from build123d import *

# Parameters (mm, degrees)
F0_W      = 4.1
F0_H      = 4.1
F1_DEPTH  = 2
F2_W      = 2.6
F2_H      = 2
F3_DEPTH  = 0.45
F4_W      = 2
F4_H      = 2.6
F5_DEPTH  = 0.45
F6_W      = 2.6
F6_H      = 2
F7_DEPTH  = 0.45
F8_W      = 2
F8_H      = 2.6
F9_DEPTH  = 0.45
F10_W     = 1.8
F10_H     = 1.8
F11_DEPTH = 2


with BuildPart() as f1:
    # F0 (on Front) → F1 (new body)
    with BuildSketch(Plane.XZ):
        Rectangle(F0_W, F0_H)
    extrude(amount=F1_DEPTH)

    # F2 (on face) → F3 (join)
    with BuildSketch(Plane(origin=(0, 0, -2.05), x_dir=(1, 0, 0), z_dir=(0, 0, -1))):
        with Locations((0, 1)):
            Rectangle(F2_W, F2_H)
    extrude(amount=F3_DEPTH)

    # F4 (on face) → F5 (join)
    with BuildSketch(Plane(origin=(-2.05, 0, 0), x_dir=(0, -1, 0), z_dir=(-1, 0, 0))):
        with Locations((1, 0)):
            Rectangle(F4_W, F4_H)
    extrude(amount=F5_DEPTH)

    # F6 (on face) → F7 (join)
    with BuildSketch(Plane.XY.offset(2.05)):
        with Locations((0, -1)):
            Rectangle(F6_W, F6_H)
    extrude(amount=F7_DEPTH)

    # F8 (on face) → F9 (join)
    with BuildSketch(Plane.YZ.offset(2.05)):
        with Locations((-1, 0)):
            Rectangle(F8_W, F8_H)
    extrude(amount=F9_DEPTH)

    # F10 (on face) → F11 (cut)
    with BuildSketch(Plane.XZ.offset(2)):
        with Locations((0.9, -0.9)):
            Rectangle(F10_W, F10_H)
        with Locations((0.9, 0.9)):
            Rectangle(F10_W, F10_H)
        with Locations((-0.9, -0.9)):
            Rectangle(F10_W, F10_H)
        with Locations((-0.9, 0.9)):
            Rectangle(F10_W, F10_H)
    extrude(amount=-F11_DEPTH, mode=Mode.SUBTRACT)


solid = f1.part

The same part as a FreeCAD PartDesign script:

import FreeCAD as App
import Part
import Sketcher
Q = App.Units.Quantity

doc = App.newDocument("Part")
body = doc.addObject("PartDesign::Body", "Body")

sketch1 = body.newObject("Sketcher::SketchObject", "Sketch")
sketch1.AttachmentSupport = (doc.getObject("XZ_Plane"), [""])
sketch1.MapMode = "FlatFace"
sketch1.addGeometry(Part.LineSegment(App.Vector(-2, 2, 0), App.Vector(-2, -2, 0)), False)
sketch1.addGeometry(Part.LineSegment(App.Vector(-2, -2, 0), App.Vector(2, -2, 0)), False)
sketch1.addGeometry(Part.LineSegment(App.Vector(2, -2, 0), App.Vector(2, 2, 0)), False)
sketch1.addGeometry(Part.LineSegment(App.Vector(2, 2, 0), App.Vector(-2, 2, 0)), False)
sketch1.addConstraint(Sketcher.Constraint("Coincident", 0, 2, 1, 1))
sketch1.addConstraint(Sketcher.Constraint("Coincident", 1, 2, 2, 1))
sketch1.addConstraint(Sketcher.Constraint("Coincident", 2, 2, 3, 1))
sketch1.addConstraint(Sketcher.Constraint("Coincident", 3, 2, 0, 1))
sketch1.addConstraint(Sketcher.Constraint("Vertical", 0))
sketch1.addConstraint(Sketcher.Constraint("Horizontal", 1))
sketch1.addConstraint(Sketcher.Constraint("Vertical", 2))
sketch1.addConstraint(Sketcher.Constraint("Horizontal", 3))
sketch1.addConstraint(Sketcher.Constraint("Symmetric", 0, 2, 2, 2, -1, 1))
sketch1.addConstraint(Sketcher.Constraint("Equal", 3, 0))
sketch1.addConstraint(Sketcher.Constraint("DistanceX", 1, 1, 1, 2, Q("4.1 mm")))
pad1 = body.newObject("PartDesign::Pad", "Pad")
pad1.Profile = sketch1
pad1.Length = 2

sketch2 = body.newObject("Sketcher::SketchObject", "Sketch001")
sketch2.AttachmentSupport = (doc.getObject("XY_Plane"), [""])
sketch2.MapMode = "FlatFace"
sketch2.AttachmentOffset = App.Placement(App.Vector(0, 0, -2.05), App.Rotation())
sketch2.addGeometry(Part.LineSegment(App.Vector(-1.3, -2, 0), App.Vector(-1.3, 0, 0)), False)
sketch2.addGeometry(Part.LineSegment(App.Vector(-1.3, 0, 0), App.Vector(1.3, 0, 0)), False)
sketch2.addGeometry(Part.LineSegment(App.Vector(1.3, 0, 0), App.Vector(1.3, -2, 0)), False)
sketch2.addGeometry(Part.LineSegment(App.Vector(1.3, -2, 0), App.Vector(-1.3, -2, 0)), False)
sketch2.addConstraint(Sketcher.Constraint("Coincident", 0, 2, 1, 1))
sketch2.addConstraint(Sketcher.Constraint("Coincident", 1, 2, 2, 1))
sketch2.addConstraint(Sketcher.Constraint("Coincident", 2, 2, 3, 1))
sketch2.addConstraint(Sketcher.Constraint("Coincident", 3, 2, 0, 1))
sketch2.addConstraint(Sketcher.Constraint("Vertical", 0))
sketch2.addConstraint(Sketcher.Constraint("Horizontal", 1))
sketch2.addConstraint(Sketcher.Constraint("Vertical", 2))
sketch2.addConstraint(Sketcher.Constraint("Horizontal", 3))
sketch2.addConstraint(Sketcher.Constraint("Symmetric", 0, 2, 1, 2, -1, 1))
sketch2.addConstraint(Sketcher.Constraint("DistanceY", 0, 1, 0, 2, Q("2 mm")))
sketch2.addConstraint(Sketcher.Constraint("DistanceX", 1, 1, 1, 2, Q("2.6 mm")))
pad2 = body.newObject("PartDesign::Pad", "Pad001")
pad2.Profile = sketch2
pad2.Length = 0.45
pad2.Reversed = True

sketch3 = body.newObject("Sketcher::SketchObject", "Sketch002")
sketch3.AttachmentSupport = (doc.getObject("YZ_Plane"), [""])
sketch3.MapMode = "FlatFace"
sketch3.AttachmentOffset = App.Placement(App.Vector(0, 0, -2.05), App.Rotation())
sketch3.addGeometry(Part.LineSegment(App.Vector(0, 1.3, 0), App.Vector(0, -1.3, 0)), False)
sketch3.addGeometry(Part.LineSegment(App.Vector(0, -1.3, 0), App.Vector(-2, -1.3, 0)), False)
sketch3.addGeometry(Part.LineSegment(App.Vector(-2, -1.3, 0), App.Vector(-2, 1.3, 0)), False)
sketch3.addGeometry(Part.LineSegment(App.Vector(-2, 1.3, 0), App.Vector(0, 1.3, 0)), False)
sketch3.addConstraint(Sketcher.Constraint("Coincident", 0, 2, 1, 1))
sketch3.addConstraint(Sketcher.Constraint("Coincident", 1, 2, 2, 1))
sketch3.addConstraint(Sketcher.Constraint("Coincident", 2, 2, 3, 1))
sketch3.addConstraint(Sketcher.Constraint("Coincident", 3, 2, 0, 1))
sketch3.addConstraint(Sketcher.Constraint("Vertical", 0))
sketch3.addConstraint(Sketcher.Constraint("Horizontal", 1))
sketch3.addConstraint(Sketcher.Constraint("Vertical", 2))
sketch3.addConstraint(Sketcher.Constraint("Horizontal", 3))
sketch3.addConstraint(Sketcher.Constraint("Symmetric", 0, 2, 3, 2, -1, 1))
sketch3.addConstraint(Sketcher.Constraint("DistanceX", 1, 2, 1, 1, Q("2 mm")))
sketch3.addConstraint(Sketcher.Constraint("DistanceY", 0, 2, 0, 1, Q("2.6 mm")))
pad3 = body.newObject("PartDesign::Pad", "Pad002")
pad3.Profile = sketch3
pad3.Length = 0.45
pad3.Reversed = True

sketch4 = body.newObject("Sketcher::SketchObject", "Sketch003")
sketch4.AttachmentSupport = (doc.getObject("XY_Plane"), [""])
sketch4.MapMode = "FlatFace"
sketch4.AttachmentOffset = App.Placement(App.Vector(0, 0, 2.05), App.Rotation())
sketch4.addGeometry(Part.LineSegment(App.Vector(-1.3, 0, 0), App.Vector(-1.3, -2, 0)), False)
sketch4.addGeometry(Part.LineSegment(App.Vector(-1.3, -2, 0), App.Vector(1.3, -2, 0)), False)
sketch4.addGeometry(Part.LineSegment(App.Vector(1.3, -2, 0), App.Vector(1.3, 0, 0)), False)
sketch4.addGeometry(Part.LineSegment(App.Vector(1.3, 0, 0), App.Vector(-1.3, 0, 0)), False)
sketch4.addConstraint(Sketcher.Constraint("Coincident", 0, 2, 1, 1))
sketch4.addConstraint(Sketcher.Constraint("Coincident", 1, 2, 2, 1))
sketch4.addConstraint(Sketcher.Constraint("Coincident", 2, 2, 3, 1))
sketch4.addConstraint(Sketcher.Constraint("Coincident", 3, 2, 0, 1))
sketch4.addConstraint(Sketcher.Constraint("Vertical", 0))
sketch4.addConstraint(Sketcher.Constraint("Horizontal", 1))
sketch4.addConstraint(Sketcher.Constraint("Vertical", 2))
sketch4.addConstraint(Sketcher.Constraint("Horizontal", 3))
sketch4.addConstraint(Sketcher.Constraint("Symmetric", 2, 2, 3, 2, -1, 1))
sketch4.addConstraint(Sketcher.Constraint("DistanceY", 0, 2, 0, 1, Q("2 mm")))
sketch4.addConstraint(Sketcher.Constraint("DistanceX", 1, 1, 1, 2, Q("2.6 mm")))
pad4 = body.newObject("PartDesign::Pad", "Pad003")
pad4.Profile = sketch4
pad4.Length = 0.45

sketch5 = body.newObject("Sketcher::SketchObject", "Sketch004")
sketch5.AttachmentSupport = (doc.getObject("YZ_Plane"), [""])
sketch5.MapMode = "FlatFace"
sketch5.AttachmentOffset = App.Placement(App.Vector(0, 0, 2.05), App.Rotation())
sketch5.addGeometry(Part.LineSegment(App.Vector(-2, 1.3, 0), App.Vector(-2, -1.3, 0)), False)
sketch5.addGeometry(Part.LineSegment(App.Vector(-2, -1.3, 0), App.Vector(0, -1.3, 0)), False)
sketch5.addGeometry(Part.LineSegment(App.Vector(0, -1.3, 0), App.Vector(0, 1.3, 0)), False)
sketch5.addGeometry(Part.LineSegment(App.Vector(0, 1.3, 0), App.Vector(-2, 1.3, 0)), False)
sketch5.addConstraint(Sketcher.Constraint("Coincident", 0, 2, 1, 1))
sketch5.addConstraint(Sketcher.Constraint("Coincident", 1, 2, 2, 1))
sketch5.addConstraint(Sketcher.Constraint("Coincident", 2, 2, 3, 1))
sketch5.addConstraint(Sketcher.Constraint("Coincident", 3, 2, 0, 1))
sketch5.addConstraint(Sketcher.Constraint("Vertical", 0))
sketch5.addConstraint(Sketcher.Constraint("Horizontal", 1))
sketch5.addConstraint(Sketcher.Constraint("Vertical", 2))
sketch5.addConstraint(Sketcher.Constraint("Horizontal", 3))
sketch5.addConstraint(Sketcher.Constraint("Symmetric", 1, 2, 2, 2, -1, 1))
sketch5.addConstraint(Sketcher.Constraint("DistanceX", 1, 1, 1, 2, Q("2 mm")))
sketch5.addConstraint(Sketcher.Constraint("DistanceY", 0, 2, 0, 1, Q("2.6 mm")))
pad5 = body.newObject("PartDesign::Pad", "Pad004")
pad5.Profile = sketch5
pad5.Length = 0.45

sketch6 = body.newObject("Sketcher::SketchObject", "Sketch005")
sketch6.AttachmentSupport = (doc.getObject("XZ_Plane"), [""])
sketch6.MapMode = "FlatFace"
sketch6.AttachmentOffset = App.Placement(App.Vector(0, 0, 2), App.Rotation())
sketch6.addGeometry(Part.LineSegment(App.Vector(1.8, -1.8, 0), App.Vector(1.8, 1.8, 0)), False)
sketch6.addGeometry(Part.LineSegment(App.Vector(1.8, 1.8, 0), App.Vector(-1.8, 1.8, 0)), False)
sketch6.addGeometry(Part.LineSegment(App.Vector(-1.8, 1.8, 0), App.Vector(-1.8, -1.8, 0)), False)
sketch6.addGeometry(Part.LineSegment(App.Vector(-1.8, -1.8, 0), App.Vector(1.8, -1.8, 0)), False)
sketch6.addConstraint(Sketcher.Constraint("Coincident", 0, 2, 1, 1))
sketch6.addConstraint(Sketcher.Constraint("Coincident", 1, 2, 2, 1))
sketch6.addConstraint(Sketcher.Constraint("Coincident", 2, 2, 3, 1))
sketch6.addConstraint(Sketcher.Constraint("Coincident", 3, 2, 0, 1))
sketch6.addConstraint(Sketcher.Constraint("Vertical", 0))
sketch6.addConstraint(Sketcher.Constraint("Horizontal", 1))
sketch6.addConstraint(Sketcher.Constraint("Vertical", 2))
sketch6.addConstraint(Sketcher.Constraint("Horizontal", 3))
sketch6.addConstraint(Sketcher.Constraint("Symmetric", 0, 2, 2, 2, -1, 1))
sketch6.addConstraint(Sketcher.Constraint("Equal", 3, 0))
sketch6.addConstraint(Sketcher.Constraint("DistanceX", 1, 2, 1, 1, Q("3.6 mm")))
pocket1 = body.newObject("PartDesign::Pocket", "Pocket")
pocket1.Profile = sketch6
pocket1.Length = 2

doc.recompute()
